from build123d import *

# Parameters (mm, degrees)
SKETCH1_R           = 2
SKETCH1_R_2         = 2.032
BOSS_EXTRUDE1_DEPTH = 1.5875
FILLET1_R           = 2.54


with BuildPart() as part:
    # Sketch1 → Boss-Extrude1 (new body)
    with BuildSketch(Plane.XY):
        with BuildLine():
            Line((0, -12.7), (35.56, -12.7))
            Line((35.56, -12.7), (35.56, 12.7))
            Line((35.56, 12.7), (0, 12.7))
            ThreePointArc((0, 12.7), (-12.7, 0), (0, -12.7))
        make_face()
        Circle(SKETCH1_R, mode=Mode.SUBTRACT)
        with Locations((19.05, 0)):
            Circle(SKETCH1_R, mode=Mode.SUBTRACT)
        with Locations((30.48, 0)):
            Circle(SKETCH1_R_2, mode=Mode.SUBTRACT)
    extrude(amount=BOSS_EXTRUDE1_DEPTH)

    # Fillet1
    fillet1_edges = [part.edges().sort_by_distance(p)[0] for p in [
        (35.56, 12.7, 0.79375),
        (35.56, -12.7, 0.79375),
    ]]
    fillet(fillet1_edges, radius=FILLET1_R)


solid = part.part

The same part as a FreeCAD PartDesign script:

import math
import FreeCAD as App
import Part
import Sketcher
from FreeCAD import Vector
Q = App.Units.Quantity


def edges_at(feature, points):
    """Names of the edges that pass closest to the given points."""
    edges = feature.Shape.Edges
    near = lambda p: min(range(len(edges)), key=lambda i: edges[i].distToShape(Part.Vertex(*p))[0])
    return sorted({f"Edge{near(p) + 1}" for p in points})

doc = App.newDocument("Part")
params = doc.addObject("Spreadsheet::Sheet", "Params")
for row, (alias, value) in enumerate([
    ("sketch1_radius", "0.5 in"),
    ("sketch1_diameter", "0.16 in"),
    ("sketch1_width", "1.4 in"),
    ("pad1_length", "0.0625 in"),
    ("fillet_radius", "0.1 in"),
], start=1):
    params.set(f"A{row}", alias)
    params.set(f"B{row}", "=" + value)
    params.setAlias(f"B{row}", alias)

body = doc.addObject("PartDesign::Body", "Body")

sketch1 = body.newObject("Sketcher::SketchObject", "Sketch")
sketch1.AttachmentSupport = (doc.getObject("XY_Plane"), [""])
sketch1.MapMode = "FlatFace"
sketch1.addGeometry([
    Part.LineSegment(Vector(0, -12.7, 0), Vector(35.6, -12.7, 0)),
    Part.LineSegment(Vector(35.6, -12.7, 0), Vector(35.6, 12.7, 0)),
    Part.LineSegment(Vector(35.6, 12.7, 0), Vector(0, 12.7, 0)),
    Part.ArcOfCircle(Part.Circle(Vector(0, 0, 0), Vector(0, 0, 1), 12.7), math.radians(90), math.radians(270)),
    Part.Circle(Vector(0, 0, 0), Vector(0, 0, 1), 2),
    Part.Circle(Vector(19.1, 0, 0), Vector(0, 0, 1), 2),
    Part.Circle(Vector(30.5, 0, 0), Vector(0, 0, 1), 2),
], False)
sketch1.addConstraint([
    Sketcher.Constraint("Coincident", 0, 2, 1, 1),
    Sketcher.Constraint("Coincident", 1, 2, 2, 1),
    Sketcher.Constraint("Tangent", 2, 2, 3, 1),
    Sketcher.Constraint("Tangent", 3, 2, 0, 1),
    Sketcher.Constraint("Horizontal", 0),
    Sketcher.Constraint("Vertical", 1),
    Sketcher.Constraint("Horizontal", 2),
    Sketcher.Constraint("Coincident", 3, 3, -1, 1),
    Sketcher.Constraint("Coincident", 4, 3, -1, 1),
    Sketcher.Constraint("Equal", 4, 5),
    Sketcher.Constraint("PointOnObject", 5, 3, -1),
    Sketcher.Constraint("PointOnObject", 6, 3, -1),
    Sketcher.Constraint("Radius", 3, Q("0.5 in")),
    Sketcher.Constraint("Diameter", 6, Q("0.16 in")),
    Sketcher.Constraint("DistanceX", 0, 1, 0, 2, Q("1.4 in")),
    Sketcher.Constraint("DistanceX", -1, 1, 6, 3, Q("1.2 in")),
    Sketcher.Constraint("Diameter", 4, Q("4 mm")),
    Sketcher.Constraint("DistanceX", -1, 1, 5, 3, Q("0.75 in")),
])
sketch1.setExpression("Constraints[12]", "Params.sketch1_radius")
sketch1.setExpression("Constraints[13]", "Params.sketch1_diameter")
sketch1.setExpression("Constraints[14]", "Params.sketch1_width")
pad1 = body.newObject("PartDesign::Pad", "Pad")
pad1.Profile = sketch1
pad1.setExpression("Length", "Params.pad1_length")
doc.recompute()

fillet = body.newObject("PartDesign::Fillet", "Fillet")
fillet.Base = (pad1, edges_at(pad1, [(35.56, 12.7, 0.794), (35.56, -12.7, 0.794)]))
fillet.setExpression("Radius", "Params.fillet_radius")

doc.recompute()
